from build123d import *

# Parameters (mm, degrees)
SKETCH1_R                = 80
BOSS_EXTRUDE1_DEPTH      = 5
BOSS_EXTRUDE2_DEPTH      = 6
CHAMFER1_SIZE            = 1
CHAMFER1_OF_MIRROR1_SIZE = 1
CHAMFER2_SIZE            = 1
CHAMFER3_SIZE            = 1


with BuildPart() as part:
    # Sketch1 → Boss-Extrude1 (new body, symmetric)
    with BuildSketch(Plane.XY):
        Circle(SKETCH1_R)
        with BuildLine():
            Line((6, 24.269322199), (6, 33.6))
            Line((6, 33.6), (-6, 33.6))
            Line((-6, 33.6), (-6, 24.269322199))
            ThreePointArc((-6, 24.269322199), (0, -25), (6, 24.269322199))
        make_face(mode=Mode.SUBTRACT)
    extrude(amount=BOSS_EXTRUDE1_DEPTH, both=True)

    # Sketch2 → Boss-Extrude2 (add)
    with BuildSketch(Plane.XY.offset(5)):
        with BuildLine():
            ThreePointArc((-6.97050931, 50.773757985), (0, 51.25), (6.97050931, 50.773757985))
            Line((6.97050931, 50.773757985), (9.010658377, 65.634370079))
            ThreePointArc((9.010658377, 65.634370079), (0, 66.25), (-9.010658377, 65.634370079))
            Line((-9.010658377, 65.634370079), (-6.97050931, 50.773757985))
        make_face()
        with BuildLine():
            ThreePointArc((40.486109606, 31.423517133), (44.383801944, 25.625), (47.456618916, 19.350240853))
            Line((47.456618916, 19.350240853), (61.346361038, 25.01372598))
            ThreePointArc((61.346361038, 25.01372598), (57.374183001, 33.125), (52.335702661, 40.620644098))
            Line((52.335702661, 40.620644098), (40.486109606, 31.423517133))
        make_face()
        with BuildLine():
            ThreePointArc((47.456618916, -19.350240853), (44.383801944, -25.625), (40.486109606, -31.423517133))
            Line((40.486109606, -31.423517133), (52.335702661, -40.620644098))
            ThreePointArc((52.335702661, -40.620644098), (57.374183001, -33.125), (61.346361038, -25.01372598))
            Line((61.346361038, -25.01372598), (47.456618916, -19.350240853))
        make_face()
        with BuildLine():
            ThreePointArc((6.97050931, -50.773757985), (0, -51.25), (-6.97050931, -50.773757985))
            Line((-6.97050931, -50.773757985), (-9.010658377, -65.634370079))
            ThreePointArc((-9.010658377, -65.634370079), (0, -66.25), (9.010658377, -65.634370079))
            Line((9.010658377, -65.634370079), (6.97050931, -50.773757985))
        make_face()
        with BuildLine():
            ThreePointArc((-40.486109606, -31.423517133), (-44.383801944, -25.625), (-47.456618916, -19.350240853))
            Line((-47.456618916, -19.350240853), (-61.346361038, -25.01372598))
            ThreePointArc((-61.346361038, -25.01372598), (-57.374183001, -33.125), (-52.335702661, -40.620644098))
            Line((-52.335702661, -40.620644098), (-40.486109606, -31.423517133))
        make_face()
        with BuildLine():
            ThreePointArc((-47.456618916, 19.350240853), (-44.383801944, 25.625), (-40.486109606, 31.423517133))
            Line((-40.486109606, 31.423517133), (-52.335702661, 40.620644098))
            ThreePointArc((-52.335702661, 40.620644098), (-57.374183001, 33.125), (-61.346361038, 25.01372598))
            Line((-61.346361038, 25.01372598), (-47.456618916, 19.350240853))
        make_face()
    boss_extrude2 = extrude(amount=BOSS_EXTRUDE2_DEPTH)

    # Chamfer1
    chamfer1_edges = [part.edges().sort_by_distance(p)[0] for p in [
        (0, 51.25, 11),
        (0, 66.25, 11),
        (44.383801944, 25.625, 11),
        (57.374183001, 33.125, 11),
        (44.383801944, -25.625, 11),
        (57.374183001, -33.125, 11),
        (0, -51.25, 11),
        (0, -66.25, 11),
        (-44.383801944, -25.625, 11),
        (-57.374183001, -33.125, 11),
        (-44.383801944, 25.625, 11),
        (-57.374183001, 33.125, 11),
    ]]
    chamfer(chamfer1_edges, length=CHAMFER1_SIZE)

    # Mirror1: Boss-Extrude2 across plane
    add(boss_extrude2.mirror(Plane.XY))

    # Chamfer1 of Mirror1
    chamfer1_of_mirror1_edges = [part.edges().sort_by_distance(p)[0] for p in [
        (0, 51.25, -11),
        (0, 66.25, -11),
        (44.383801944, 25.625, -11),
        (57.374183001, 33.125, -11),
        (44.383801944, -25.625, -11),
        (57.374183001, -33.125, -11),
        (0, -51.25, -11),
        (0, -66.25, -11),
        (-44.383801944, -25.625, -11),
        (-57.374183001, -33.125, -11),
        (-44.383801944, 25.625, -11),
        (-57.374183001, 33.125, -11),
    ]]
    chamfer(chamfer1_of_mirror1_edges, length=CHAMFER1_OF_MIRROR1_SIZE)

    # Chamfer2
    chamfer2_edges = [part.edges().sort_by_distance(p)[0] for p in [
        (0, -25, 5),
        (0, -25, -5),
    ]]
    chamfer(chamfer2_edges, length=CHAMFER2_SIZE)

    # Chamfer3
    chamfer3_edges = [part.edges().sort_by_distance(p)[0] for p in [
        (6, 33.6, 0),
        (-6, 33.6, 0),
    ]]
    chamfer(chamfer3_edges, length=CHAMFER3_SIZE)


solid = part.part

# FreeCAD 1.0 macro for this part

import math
import FreeCAD as App
import Part
import Sketcher

V = App.Vector


def edges_at(feature, points):
    """Names of the edges that pass closest to the given points."""
    edges = feature.Shape.Edges
    near = lambda p: min(range(len(edges)), key=lambda i: edges[i].distToShape(Part.Vertex(*p))[0])
    return sorted({f"Edge{near(p) + 1}" for p in points})

doc = App.newDocument("Part")
body = doc.addObject("PartDesign::Body", "Body")

# Sketch on XY plane
sketch1 = body.newObject("Sketcher::SketchObject", "Sketch")
sketch1.AttachmentSupport = (doc.getObject("XY_Plane"), [""])
sketch1.MapMode = "FlatFace"
sketch1.addGeometry([
    Part.Circle(V(0, 0, 0), V(0, 0, 1), 80),  # 0
    Part.LineSegment(V(6, 34, 0), V(6, 24, 0)),  # 1
    Part.ArcOfCircle(Part.Circle(V(0, 0, 0), V(0, 0, 1), 25), math.radians(104), math.radians(436)),  # 2
    Part.LineSegment(V(-6, 24, 0), V(-6, 34, 0)),  # 3
    Part.LineSegment(V(-6, 34, 0), V(6, 34, 0)),  # 4
], False)
sketch1.addConstraint([
    Sketcher.Constraint("Coincident", 1, 2, 2, 2),
    Sketcher.Constraint("Coincident", 2, 1, 3, 1),
    Sketcher.Constraint("Coincident", 3, 2, 4, 1),
    Sketcher.Constraint("Coincident", 4, 2, 1, 1),
    Sketcher.Constraint("Vertical", 1),
    Sketcher.Constraint("Vertical", 3),
    Sketcher.Constraint("Horizontal", 4),
    Sketcher.Constraint("Coincident", 0, 3, -1, 1),
    Sketcher.Constraint("Coincident", 2, 3, -1, 1),
    Sketcher.Constraint("Horizontal", 1, 2, 2, 1),
    Sketcher.Constraint("Diameter", 0, 160.0),
    Sketcher.Constraint("Radius", 2, 25.0),
    Sketcher.Constraint("DistanceX", 4, 1, 4, 2, 12.0),
    Sketcher.Constraint("DistanceY", -1, 1, 3, 2, 33.6),
])
pad1 = body.newObject("PartDesign::Pad", "Pad")
pad1.Profile = sketch1
pad1.Length = 10
pad1.Midplane = True

# Sketch on XY plane
sketch2 = body.newObject("Sketcher::SketchObject", "Sketch001")
sketch2.AttachmentSupport = (doc.getObject("XY_Plane"), [""])
sketch2.MapMode = "FlatFace"
sketch2.AttachmentOffset = App.Placement(V(0, 0, 5), App.Rotation())
sketch2.addGeometry([
    Part.ArcOfCircle(Part.Circle(V(0, 0, 0), V(0, 0, 1), 51), math.radians(82.18), math.radians(97.82)),  # 0
    Part.LineSegment(V(7, 51, 0), V(9, 66, 0)),  # 1
    Part.ArcOfCircle(Part.Circle(V(0, 0, 0), V(0, 0, 1), 66), math.radians(82.18), math.radians(97.82)),  # 2
    Part.LineSegment(V(-9, 66, 0), V(-7, 51, 0)),  # 3
    Part.ArcOfCircle(Part.Circle(V(0, 0, 0), V(0, 0, 1), 51), math.radians(22.18), math.radians(37.82)),  # 4
    Part.LineSegment(V(47, 19, 0), V(61, 25, 0)),  # 5
    Part.ArcOfCircle(Part.Circle(V(0, 0, 0), V(0, 0, 1), 66), math.radians(22.18), math.radians(37.82)),  # 6
    Part.LineSegment(V(52, 41, 0), V(40, 31, 0)),  # 7
    Part.ArcOfCircle(Part.Circle(V(0, 0, 0), V(0, 0, 1), 51), math.radians(-37.82), math.radians(-22.18)),  # 8
    Part.LineSegment(V(40, -31, 0), V(52, -41, 0)),  # 9
    Part.ArcOfCircle(Part.Circle(V(0, 0, 0), V(0, 0, 1), 66), math.radians(-37.82), math.radians(-22.18)),  # 10
    Part.LineSegment(V(61, -25, 0), V(47, -19, 0)),  # 11
    Part.ArcOfCircle(Part.Circle(V(0, 0, 0), V(0, 0, 1), 51), math.radians(-97.82), math.radians(-82.18)),  # 12
    Part.LineSegment(V(-7, -51, 0), V(-9, -66, 0)),  # 13
    Part.ArcOfCircle(Part.Circle(V(0, 0, 0), V(0, 0, 1), 66), math.radians(-97.82), math.radians(-82.18)),  # 14
    Part.LineSegment(V(9, -66, 0), V(7, -51, 0)),  # 15
    Part.ArcOfCircle(Part.Circle(V(0, 0, 0), V(0, 0, 1), 51), math.radians(-157.82), math.radians(-142.18)),  # 16
    Part.LineSegment(V(-47, -19, 0), V(-61, -25, 0)),  # 17
    Part.ArcOfCircle(Part.Circle(V(0, 0, 0), V(0, 0, 1), 66), math.radians(-157.82), math.radians(-142.18)),  # 18
    Part.LineSegment(V(-52, -41, 0), V(-40, -31, 0)),  # 19
    Part.ArcOfCircle(Part.Circle(V(0, 0, 0), V(0, 0, 1), 51), math.radians(142.18), math.radians(157.82)),  # 20
    Part.LineSegment(V(-40, 31, 0), V(-52, 41, 0)),  # 21
    Part.ArcOfCircle(Part.Circle(V(0, 0, 0), V(0, 0, 1), 66), math.radians(142.18), math.radians(157.82)),  # 22
    Part.LineSegment(V(-61, 25, 0), V(-47, 19, 0)),  # 23
], False)
sketch2.addConstraint([
    Sketcher.Constraint("Coincident", 0, 1, 1, 1),
    Sketcher.Constraint("Coincident", 1, 2, 2, 1),
    Sketcher.Constraint("Coincident", 2, 2, 3, 1),
    Sketcher.Constraint("Coincident", 3, 2, 0, 2),
    Sketcher.Constraint("Coincident", 4, 1, 5, 1),
    Sketcher.Constraint("Coincident", 5, 2, 6, 1),
    Sketcher.Constraint("Coincident", 6, 2, 7, 1),
    Sketcher.Constraint("Coincident", 7, 2, 4, 2),
    Sketcher.Constraint("Coincident", 8, 1, 9, 1),
    Sketcher.Constraint("Coincident", 9, 2, 10, 1),
    Sketcher.Constraint("Coincident", 10, 2, 11, 1),
    Sketcher.Constraint("Coincident", 11, 2, 8, 2),
    Sketcher.Constraint("Coincident", 12, 1, 13, 1),
    Sketcher.Constraint("Coincident", 13, 2, 14, 1),
    Sketcher.Constraint("Coincident", 14, 2, 15, 1),
    Sketcher.Constraint("Coincident", 15, 2, 12, 2),
    Sketcher.Constraint("Coincident", 16, 1, 17, 1),
    Sketcher.Constraint("Coincident", 17, 2, 18, 1),
    Sketcher.Constraint("Coincident", 18, 2, 19, 1),
    Sketcher.Constraint("Coincident", 19, 2, 16, 2),
    Sketcher.Constraint("Coincident", 20, 1, 21, 1),
    Sketcher.Constraint("Coincident", 21, 2, 22, 1),
    Sketcher.Constraint("Coincident", 22, 2, 23, 1),
    Sketcher.Constraint("Coincident", 23, 2, 20, 2),
    Sketcher.Constraint("Coincident", 0, 3, -1, 1),
    Sketcher.Constraint("Coincident", 2, 3, -1, 1),
    Sketcher.Constraint("Coincident", 4, 3, -1, 1),
    Sketcher.Constraint("Coincident", 6, 3, -1, 1),
    Sketcher.Constraint("Coincident", 8, 3, -1, 1),
    Sketcher.Constraint("Coincident", 10, 3, -1, 1),
    Sketcher.Constraint("Coincident", 12, 3, -1, 1),
    Sketcher.Constraint("Coincident", 14, 3, -1, 1),
    Sketcher.Constraint("Coincident", 16, 3, -1, 1),
    Sketcher.Constraint("Coincident", 18, 3, -1, 1),
    Sketcher.Constraint("Coincident", 20, 3, -1, 1),
    Sketcher.Constraint("Coincident", 22, 3, -1, 1),
    Sketcher.Constraint("Equal", 0, 4),
    Sketcher.Constraint("Equal", 2, 6),
    Sketcher.Constraint("Equal", 4, 8),
    Sketcher.Constraint("Equal", 6, 10),
    Sketcher.Constraint("Equal", 8, 12),
    Sketcher.Constraint("Equal", 10, 14),
    Sketcher.Constraint("Equal", 12, 16),
    Sketcher.Constraint("Equal", 14, 18),
    Sketcher.Constraint("Equal", 16, 20),
    Sketcher.Constraint("Equal", 18, 22),
    Sketcher.Constraint("Parallel", 1, 13),
    Sketcher.Constraint("Parallel", 3, 15),
    Sketcher.Constraint("Parallel", 5, 17),
    Sketcher.Constraint("Parallel", 7, 19),
    Sketcher.Constraint("Parallel", 9, 21),
    Sketcher.Constraint("Parallel", 11, 23),
    Sketcher.Constraint("Horizontal", 1, 2, 2, 2),
    Sketcher.Constraint("Horizontal", 0, 1, 3, 2),
    Sketcher.Constraint("Horizontal", 13, 2, 14, 2),
    Sketcher.Constraint("Horizontal", 11, 2, 16, 1),
    Sketcher.Constraint("Horizontal", 10, 2, 17, 2),
    Sketcher.Constraint("Horizontal", 9, 2, 18, 2),
    Sketcher.Constraint("Horizontal", 8, 1, 19, 2),
    Sketcher.Constraint("Horizontal", 7, 2, 20, 1),
    Sketcher.Constraint("Horizontal", 5, 2, 22, 2),
    Sketcher.Constraint("Vertical", 7, 2, 8, 1),
    Sketcher.Constraint("Vertical", 5, 2, 10, 2),
    Sketcher.Constraint("Vertical", 3, 2, 12, 1),
    Sketcher.Constraint("Radius", 0, 51.25),
    Sketcher.Constraint("Radius", 2, 66.25),
    Sketcher.Constraint("DistanceX", 0, 1, 7, 2, 33.5156),
    Sketcher.Constraint("DistanceX", -1, 1, 0, 1, 6.970509),
    Sketcher.Constraint("DistanceX", -1, 1, 1, 2, 9.010658),
    Sketcher.Constraint("DistanceX", -1, 1, 4, 1, 47.456619),
    Sketcher.Constraint("DistanceX", -1, 1, 5, 2, 61.346361),
    Sketcher.Constraint("DistanceX", 6, 2, 5, 2, 9.010658),
])
pad2 = body.newObject("PartDesign::Pad", "Pad001")
pad2.Profile = sketch2
pad2.Length = 6
doc.recompute()

chamfer = body.newObject("PartDesign::Chamfer", "Chamfer")
chamfer.Base = (pad2, edges_at(pad2, [
    (0, 51.25, 11),
    (0, 66.25, 11),
    (44.384, 25.625, 11),
    (57.374, 33.125, 11),
    (44.384, -25.625, 11),
    (57.374, -33.125, 11),
    (0, -51.25, 11),
    (0, -66.25, 11),
    (-44.384, -25.625, 11),
    (-57.374, -33.125, 11),
    (-44.384, 25.625, 11),
    (-57.374, 33.125, 11),
]))
chamfer.Size = 1
doc.recompute()

mirrored = body.newObject("PartDesign::Mirrored", "Mirrored")
mirrored.Originals = [pad2]
mirrored.MirrorPlane = (doc.getObject("XY_Plane"), [""])
body.Tip = mirrored
doc.recompute()

chamfer2 = body.newObject("PartDesign::Chamfer", "Chamfer001")
chamfer2.Base = (mirrored, edges_at(mirrored, [
    (0, 51.25, -11),
    (0, 66.25, -11),
    (44.384, 25.625, -11),
    (57.374, 33.125, -11),
    (44.384, -25.625, -11),
    (57.374, -33.125, -11),
    (0, -51.25, -11),
    (0, -66.25, -11),
    (-44.384, -25.625, -11),
    (-57.374, -33.125, -11),
    (-44.384, 25.625, -11),
    (-57.374, 33.125, -11),
]))
chamfer2.Size = 1
doc.recompute()

chamfer3 = body.newObject("PartDesign::Chamfer", "Chamfer002")
chamfer3.Base = (chamfer2, edges_at(chamfer2, [(0, -25, 5), (0, -25, -5)]))
chamfer3.Size = 1
doc.recompute()

chamfer4 = body.newObject("PartDesign::Chamfer", "Chamfer003")
chamfer4.Base = (chamfer3, edges_at(chamfer3, [(6, 33.6, 0), (-6, 33.6, 0)]))
chamfer4.Size = 1

doc.recompute()
